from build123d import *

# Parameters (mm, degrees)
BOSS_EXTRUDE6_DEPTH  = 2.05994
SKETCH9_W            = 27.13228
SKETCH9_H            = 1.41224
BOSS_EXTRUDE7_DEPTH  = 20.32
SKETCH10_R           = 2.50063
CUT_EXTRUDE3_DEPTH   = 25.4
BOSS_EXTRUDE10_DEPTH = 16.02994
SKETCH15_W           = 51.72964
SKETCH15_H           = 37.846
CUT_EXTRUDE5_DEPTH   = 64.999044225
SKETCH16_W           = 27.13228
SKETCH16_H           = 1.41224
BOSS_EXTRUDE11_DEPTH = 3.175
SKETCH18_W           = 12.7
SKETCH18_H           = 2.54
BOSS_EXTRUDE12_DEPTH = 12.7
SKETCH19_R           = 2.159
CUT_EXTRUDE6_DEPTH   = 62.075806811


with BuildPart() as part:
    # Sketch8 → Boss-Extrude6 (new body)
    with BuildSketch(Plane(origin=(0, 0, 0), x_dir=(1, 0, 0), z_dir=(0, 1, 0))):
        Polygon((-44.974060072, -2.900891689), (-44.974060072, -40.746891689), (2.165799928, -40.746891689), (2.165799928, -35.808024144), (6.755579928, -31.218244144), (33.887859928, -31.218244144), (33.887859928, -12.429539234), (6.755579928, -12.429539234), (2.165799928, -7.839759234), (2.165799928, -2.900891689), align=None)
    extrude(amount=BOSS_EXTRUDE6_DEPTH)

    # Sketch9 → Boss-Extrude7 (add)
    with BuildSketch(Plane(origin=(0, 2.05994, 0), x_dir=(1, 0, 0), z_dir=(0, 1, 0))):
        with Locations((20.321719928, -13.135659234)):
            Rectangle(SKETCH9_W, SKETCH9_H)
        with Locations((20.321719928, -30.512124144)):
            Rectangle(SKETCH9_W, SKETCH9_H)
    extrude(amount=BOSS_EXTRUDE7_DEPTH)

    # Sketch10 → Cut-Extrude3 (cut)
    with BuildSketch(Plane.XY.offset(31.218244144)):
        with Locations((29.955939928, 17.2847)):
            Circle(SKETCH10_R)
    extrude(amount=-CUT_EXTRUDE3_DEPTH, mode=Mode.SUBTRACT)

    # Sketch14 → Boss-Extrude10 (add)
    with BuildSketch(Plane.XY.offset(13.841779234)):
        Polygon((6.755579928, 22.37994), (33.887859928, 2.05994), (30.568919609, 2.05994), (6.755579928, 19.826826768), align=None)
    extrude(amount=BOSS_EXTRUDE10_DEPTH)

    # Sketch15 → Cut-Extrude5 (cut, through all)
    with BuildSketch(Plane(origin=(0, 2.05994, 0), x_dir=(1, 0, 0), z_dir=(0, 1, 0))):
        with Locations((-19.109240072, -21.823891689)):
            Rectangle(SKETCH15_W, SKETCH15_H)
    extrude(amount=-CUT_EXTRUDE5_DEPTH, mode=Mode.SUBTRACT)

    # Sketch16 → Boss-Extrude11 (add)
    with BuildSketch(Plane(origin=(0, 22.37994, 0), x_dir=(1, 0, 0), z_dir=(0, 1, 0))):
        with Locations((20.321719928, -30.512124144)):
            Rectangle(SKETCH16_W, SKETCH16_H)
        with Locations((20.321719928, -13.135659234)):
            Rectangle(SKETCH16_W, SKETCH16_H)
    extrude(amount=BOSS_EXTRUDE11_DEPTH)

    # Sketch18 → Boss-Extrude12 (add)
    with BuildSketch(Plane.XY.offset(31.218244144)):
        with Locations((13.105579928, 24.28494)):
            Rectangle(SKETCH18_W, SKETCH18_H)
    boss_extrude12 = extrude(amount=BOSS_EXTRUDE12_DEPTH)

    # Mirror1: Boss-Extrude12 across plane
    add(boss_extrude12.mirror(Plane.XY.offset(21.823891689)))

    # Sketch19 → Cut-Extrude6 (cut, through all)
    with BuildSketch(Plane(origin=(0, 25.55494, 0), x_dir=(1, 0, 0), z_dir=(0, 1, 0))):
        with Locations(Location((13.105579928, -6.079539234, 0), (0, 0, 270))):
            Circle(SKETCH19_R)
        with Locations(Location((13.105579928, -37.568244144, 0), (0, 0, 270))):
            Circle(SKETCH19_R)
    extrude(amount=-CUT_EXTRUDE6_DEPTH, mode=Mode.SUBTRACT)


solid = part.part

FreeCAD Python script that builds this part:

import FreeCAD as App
import Part
import Sketcher
from FreeCAD import Vector
Q = App.Units.Quantity

doc = App.newDocument("Part")
body = doc.addObject("PartDesign::Body", "Body")

sketch1 = doc.addObject("Sketcher::SketchObject", "Sketch")
body.addObject(sketch1)
sketch1.AttachmentSupport = (doc.XZ_Plane, [""])
sketch1.MapMode = "FlatFace"
sketch1.addGeometry(Part.LineSegment(Vector(-45, 2.9, 0), Vector(-45, 40.7, 0)), False)
sketch1.addGeometry(Part.LineSegment(Vector(-45, 40.7, 0), Vector(2.2, 40.7, 0)), False)
sketch1.addGeometry(Part.LineSegment(Vector(2.2, 40.7, 0), Vector(2.2, 35.8, 0)), False)
sketch1.addGeometry(Part.LineSegment(Vector(2.2, 35.8, 0), Vector(6.8, 31.2, 0)), False)
sketch1.addGeometry(Part.LineSegment(Vector(6.8, 31.2, 0), Vector(33.9, 31.2, 0)), False)
sketch1.addGeometry(Part.LineSegment(Vector(33.9, 31.2, 0), Vector(33.9, 12.4, 0)), False)
sketch1.addGeometry(Part.LineSegment(Vector(33.9, 12.4, 0), Vector(6.8, 12.4, 0)), False)
sketch1.addGeometry(Part.LineSegment(Vector(6.8, 12.4, 0), Vector(2.2, 7.8, 0)), False)
sketch1.addGeometry(Part.LineSegment(Vector(2.2, 7.8, 0), Vector(2.2, 2.9, 0)), False)
sketch1.addGeometry(Part.LineSegment(Vector(2.2, 2.9, 0), Vector(-45, 2.9, 0)), False)
sketch1.addConstraint(Sketcher.Constraint("Coincident", 0, 2, 1, 1))
sketch1.addConstraint(Sketcher.Constraint("Coincident", 1, 2, 2, 1))
sketch1.addConstraint(Sketcher.Constraint("Coincident", 2, 2, 3, 1))
sketch1.addConstraint(Sketcher.Constraint("Coincident", 3, 2, 4, 1))
sketch1.addConstraint(Sketcher.Constraint("Coincident", 4, 2, 5, 1))
sketch1.addConstraint(Sketcher.Constraint("Coincident", 5, 2, 6, 1))
sketch1.addConstraint(Sketcher.Constraint("Coincident", 6, 2, 7, 1))
sketch1.addConstraint(Sketcher.Constraint("Coincident", 7, 2, 8, 1))
sketch1.addConstraint(Sketcher.Constraint("Coincident", 8, 2, 9, 1))
sketch1.addConstraint(Sketcher.Constraint("Coincident", 9, 2, 0, 1))
sketch1.addConstraint(Sketcher.Constraint("Vertical", 0))
sketch1.addConstraint(Sketcher.Constraint("Horizontal", 1))
sketch1.addConstraint(Sketcher.Constraint("Vertical", 2))
sketch1.addConstraint(Sketcher.Constraint("Horizontal", 4))
sketch1.addConstraint(Sketcher.Constraint("Vertical", 5))
sketch1.addConstraint(Sketcher.Constraint("Horizontal", 6))
sketch1.addConstraint(Sketcher.Constraint("Vertical", 8))
sketch1.addConstraint(Sketcher.Constraint("Horizontal", 9))
sketch1.addConstraint(Sketcher.Constraint("Perpendicular", 3, 7))
sketch1.addConstraint(Sketcher.Constraint("Vertical", 3, 2, 6, 2))
sketch1.addConstraint(Sketcher.Constraint("Vertical", 2, 2, 7, 2))
sketch1.addConstraint(Sketcher.Constraint("Equal", 2, 8))
sketch1.addConstraint(Sketcher.Constraint("Equal", 3, 7))
sketch1.addConstraint(Sketcher.Constraint("DistanceY", 0, 1, 0, 2, Q("1.49 in")))
sketch1.addConstraint(Sketcher.Constraint("DistanceX", 1, 1, 1, 2, Q("1.8559 in")))
sketch1.addConstraint(Sketcher.Constraint("DistanceX", 4, 1, 4, 2, Q("1.0682 in")))
sketch1.addConstraint(Sketcher.Constraint("DistanceX", 2, 2, 3, 2, Q("0.1807 in")))
sketch1.addConstraint(Sketcher.Constraint("DistanceX", -1, 1, 1, 2, Q("2.1658 mm")))
sketch1.addConstraint(Sketcher.Constraint("DistanceY", 2, 2, 2, 1, Q("4.938868 mm")))
sketch1.addConstraint(Sketcher.Constraint("DistanceY", -1, 1, 0, 2, Q("40.746892 mm")))
pad1 = doc.addObject("PartDesign::Pad", "Pad")
body.addObject(pad1)
pad1.Profile = sketch1
pad1.Length = Q("0.0811 in")
pad1.Reversed = True

sketch2 = doc.addObject("Sketcher::SketchObject", "Sketch001")
body.addObject(sketch2)
sketch2.AttachmentSupport = (doc.XZ_Plane, [""])
sketch2.MapMode = "FlatFace"
sketch2.AttachmentOffset = App.Placement(Vector(0, 0, -0.0811 * 25.4), App.Rotation())
sketch2.addGeometry(Part.LineSegment(Vector(6.8, 12.4, 0), Vector(6.8, 13.8, 0)), False)
sketch2.addGeometry(Part.LineSegment(Vector(6.8, 13.8, 0), Vector(33.9, 13.8, 0)), False)
sketch2.addGeometry(Part.LineSegment(Vector(33.9, 13.8, 0), Vector(33.9, 12.4, 0)), False)
sketch2.addGeometry(Part.LineSegment(Vector(33.9, 12.4, 0), Vector(6.8, 12.4, 0)), False)
sketch2.addGeometry(Part.LineSegment(Vector(6.8, 29.8, 0), Vector(6.8, 31.2, 0)), False)
sketch2.addGeometry(Part.LineSegment(Vector(6.8, 31.2, 0), Vector(33.9, 31.2, 0)), False)
sketch2.addGeometry(Part.LineSegment(Vector(33.9, 31.2, 0), Vector(33.9, 29.8, 0)), False)
sketch2.addGeometry(Part.LineSegment(Vector(33.9, 29.8, 0), Vector(6.8, 29.8, 0)), False)
sketch2.addConstraint(Sketcher.Constraint("Coincident", 0, 2, 1, 1))
sketch2.addConstraint(Sketcher.Constraint("Coincident", 1, 2, 2, 1))
sketch2.addConstraint(Sketcher.Constraint("Coincident", 2, 2, 3, 1))
sketch2.addConstraint(Sketcher.Constraint("Coincident", 3, 2, 0, 1))
sketch2.addConstraint(Sketcher.Constraint("Coincident", 4, 2, 5, 1))
sketch2.addConstraint(Sketcher.Constraint("Coincident", 5, 2, 6, 1))
sketch2.addConstraint(Sketcher.Constraint("Coincident", 6, 2, 7, 1))
sketch2.addConstraint(Sketcher.Constraint("Coincident", 7, 2, 4, 1))
sketch2.addConstraint(Sketcher.Constraint("Vertical", 0))
sketch2.addConstraint(Sketcher.Constraint("Horizontal", 1))
sketch2.addConstraint(Sketcher.Constraint("Vertical", 2))
sketch2.addConstraint(Sketcher.Constraint("Horizontal", 3))
sketch2.addConstraint(Sketcher.Constraint("Vertical", 4))
sketch2.addConstraint(Sketcher.Constraint("Horizontal", 5))
sketch2.addConstraint(Sketcher.Constraint("Vertical", 6))
sketch2.addConstraint(Sketcher.Constraint("Horizontal", 7))
sketch2.addConstraint(Sketcher.Constraint("Vertical", 3, 2, 4, 2))
sketch2.addConstraint(Sketcher.Constraint("Vertical", 2, 2, 5, 2))
sketch2.addConstraint(Sketcher.Constraint("Equal", 2, 4))
sketch2.addConstraint(Sketcher.Constraint("DistanceX", 1, 1, 1, 2, Q("1.0682 in")))
sketch2.addConstraint(Sketcher.Constraint("DistanceY", 0, 1, 0, 2, Q("0.0556 in")))
sketch2.addConstraint(Sketcher.Constraint("DistanceX", -1, 1, 0, 2, Q("6.75558 mm")))
sketch2.addConstraint(Sketcher.Constraint("DistanceY", -1, 1, 0, 2, Q("13.841779 mm")))
sketch2.addConstraint(Sketcher.Constraint("DistanceY", -1, 1, 4, 2, Q("31.218244 mm")))
pad2 = doc.addObject("PartDesign::Pad", "Pad001")
body.addObject(pad2)
pad2.Profile = sketch2
pad2.Length = Q("0.8 in")
pad2.Reversed = True

sketch3 = doc.addObject("Sketcher::SketchObject", "Sketch002")
body.addObject(sketch3)
sketch3.AttachmentSupport = (doc.XY_Plane, [""])
sketch3.MapMode = "FlatFace"
sketch3.AttachmentOffset = App.Placement(Vector(0, 0, 31.218244), App.Rotation())
sketch3.addGeometry(Part.Circle(Vector(30, 17.3, 0), Vector(0, 0, 1), 2.5), False)
sketch3.addConstraint(Sketcher.Constraint("Diameter", 0, Q("0.1969 in")))
sketch3.addConstraint(Sketcher.Constraint("DistanceY", -1, 1, 0, 3, Q("0.6805 in")))
sketch3.addConstraint(Sketcher.Constraint("DistanceX", -1, 1, 0, 3, Q("29.95594 mm")))
pocket1 = doc.addObject("PartDesign::Pocket", "Pocket")
body.addObject(pocket1)
pocket1.Profile = sketch3
pocket1.Length = Q("1 in")

sketch4 = doc.addObject("Sketcher::SketchObject", "Sketch003")
body.addObject(sketch4)
sketch4.AttachmentSupport = (doc.XY_Plane, [""])
sketch4.MapMode = "FlatFace"
sketch4.AttachmentOffset = App.Placement(Vector(0, 0, 13.841779), App.Rotation())
sketch4.addGeometry(Part.LineSegment(Vector(33.9, 2.1, 0), Vector(6.8, 22.4, 0)), False)
sketch4.addGeometry(Part.LineSegment(Vector(6.8, 22.4, 0), Vector(6.8, 19.8, 0)), False)
sketch4.addGeometry(Part.LineSegment(Vector(6.8, 19.8, 0), Vector(30.6, 2.1, 0)), False)
sketch4.addGeometry(Part.LineSegment(Vector(30.6, 2.1, 0), Vector(33.9, 2.1, 0)), False)
sketch4.addConstraint(Sketcher.Constraint("Coincident", 0, 2, 1, 1))
sketch4.addConstraint(Sketcher.Constraint("Coincident", 1, 2, 2, 1))
sketch4.addConstraint(Sketcher.Constraint("Coincident", 2, 2, 3, 1))
sketch4.addConstraint(Sketcher.Constraint("Coincident", 3, 2, 0, 1))
sketch4.addConstraint(Sketcher.Constraint("Vertical", 1))
sketch4.addConstraint(Sketcher.Constraint("Horizontal", 3))
sketch4.addConstraint(Sketcher.Constraint("DistanceY", 2, 2, 0, 2, Q("0.8 in")))
sketch4.addConstraint(Sketcher.Constraint("DistanceY", -1, 1, 0, 2, Q("0.8811 in")))
sketch4.addConstraint(Sketcher.Constraint("DistanceX", 1, 2, 3, 2, Q("1.0682 in")))
sketch4.addConstraint(Sketcher.Constraint("DistanceX", 3, 1, 3, 2, Q("3.31894 mm")))
sketch4.addConstraint(Sketcher.Constraint("DistanceY", 1, 2, 1, 1, Q("2.553113 mm")))
sketch4.addConstraint(Sketcher.Constraint("DistanceX", -1, 1, 0, 2, Q("6.75558 mm")))
pad3 = doc.addObject("PartDesign::Pad", "Pad002")
body.addObject(pad3)
pad3.Profile = sketch4
pad3.Length = Q("0.6311 in")

sketch5 = doc.addObject("Sketcher::SketchObject", "Sketch004")
body.addObject(sketch5)
sketch5.AttachmentSupport = (doc.XZ_Plane, [""])
sketch5.MapMode = "FlatFace"
sketch5.AttachmentOffset = App.Placement(Vector(0, 0, -0.0811 * 25.4), App.Rotation())
sketch5.addGeometry(Part.LineSegment(Vector(-45, 3, 0), Vector(-45, 41, 0)), False)
sketch5.addGeometry(Part.LineSegment(Vector(-45, 41, 0), Vector(7, 41, 0)), False)
sketch5.addGeometry(Part.LineSegment(Vector(7, 41, 0), Vector(7, 3, 0)), False)
sketch5.addGeometry(Part.LineSegment(Vector(7, 3, 0), Vector(-45, 3, 0)), False)
sketch5.addConstraint(Sketcher.Constraint("Coincident", 0, 2, 1, 1))
sketch5.addConstraint(Sketcher.Constraint("Coincident", 1, 2, 2, 1))
sketch5.addConstraint(Sketcher.Constraint("Coincident", 2, 2, 3, 1))
sketch5.addConstraint(Sketcher.Constraint("Coincident", 3, 2, 0, 1))
sketch5.addConstraint(Sketcher.Constraint("Vertical", 0))
sketch5.addConstraint(Sketcher.Constraint("Horizontal", 1))
sketch5.addConstraint(Sketcher.Constraint("Vertical", 2))
sketch5.addConstraint(Sketcher.Constraint("Horizontal", 3))
sketch5.addConstraint(Sketcher.Constraint("DistanceY", 0, 1, 0, 2, Q("1.49 in")))
sketch5.addConstraint(Sketcher.Constraint("DistanceX", 1, 1, 1, 2, Q("2.0366 in")))
sketch5.addConstraint(Sketcher.Constraint("DistanceX", 0, 2, -1, 1, Q("44.97406 mm")))
sketch5.addConstraint(Sketcher.Constraint("DistanceY", -1, 1, 0, 2, Q("40.746892 mm")))
pocket2 = doc.addObject("PartDesign::Pocket", "Pocket001")
body.addObject(pocket2)
pocket2.Profile = sketch5
pocket2.Type = "ThroughAll"
pocket2.Reversed = True

sketch6 = doc.addObject("Sketcher::SketchObject", "Sketch005")
body.addObject(sketch6)
sketch6.AttachmentSupport = (doc.XZ_Plane, [""])
sketch6.MapMode = "FlatFace"
sketch6.AttachmentOffset = App.Placement(Vector(0, 0, -0.8811 * 25.4), App.Rotation())
sketch6.addGeometry(Part.LineSegment(Vector(6.8, 29.8, 0), Vector(6.8, 31.2, 0)), False)
sketch6.addGeometry(Part.LineSegment(Vector(6.8, 31.2, 0), Vector(33.9, 31.2, 0)), False)
sketch6.addGeometry(Part.LineSegment(Vector(33.9, 31.2, 0), Vector(33.9, 29.8, 0)), False)
sketch6.addGeometry(Part.LineSegment(Vector(33.9, 29.8, 0), Vector(6.8, 29.8, 0)), False)
sketch6.addGeometry(Part.LineSegment(Vector(6.8, 12.4, 0), Vector(6.8, 13.8, 0)), False)
sketch6.addGeometry(Part.LineSegment(Vector(6.8, 13.8, 0), Vector(33.9, 13.8, 0)), False)
sketch6.addGeometry(Part.LineSegment(Vector(33.9, 13.8, 0), Vector(33.9, 12.4, 0)), False)
sketch6.addGeometry(Part.LineSegment(Vector(33.9, 12.4, 0), Vector(6.8, 12.4, 0)), False)
sketch6.addConstraint(Sketcher.Constraint("Coincident", 0, 2, 1, 1))
sketch6.addConstraint(Sketcher.Constraint("Coincident", 1, 2, 2, 1))
sketch6.addConstraint(Sketcher.Constraint("Coincident", 2, 2, 3, 1))
sketch6.addConstraint(Sketcher.Constraint("Coincident", 3, 2, 0, 1))
sketch6.addConstraint(Sketcher.Constraint("Coincident", 4, 2, 5, 1))
sketch6.addConstraint(Sketcher.Constraint("Coincident", 5, 2, 6, 1))
sketch6.addConstraint(Sketcher.Constraint("Coincident", 6, 2, 7, 1))
sketch6.addConstraint(Sketcher.Constraint("Coincident", 7, 2, 4, 1))
sketch6.addConstraint(Sketcher.Constraint("Vertical", 0))
sketch6.addConstraint(Sketcher.Constraint("Horizontal", 1))
sketch6.addConstraint(Sketcher.Constraint("Vertical", 2))
sketch6.addConstraint(Sketcher.Constraint("Horizontal", 3))
sketch6.addConstraint(Sketcher.Constraint("Vertical", 4))
sketch6.addConstraint(Sketcher.Constraint("Horizontal", 5))
sketch6.addConstraint(Sketcher.Constraint("Vertical", 6))
sketch6.addConstraint(Sketcher.Constraint("Horizontal", 7))
sketch6.addConstraint(Sketcher.Constraint("Vertical", 3, 2, 4, 2))
sketch6.addConstraint(Sketcher.Constraint("Vertical", 2, 2, 5, 2))
sketch6.addConstraint(Sketcher.Constraint("Equal", 2, 4))
sketch6.addConstraint(Sketcher.Constraint("DistanceX", 1, 1, 1, 2, Q("1.0682 in")))
sketch6.addConstraint(Sketcher.Constraint("DistanceY", 0, 1, 0, 2, Q("0.0556 in")))
sketch6.addConstraint(Sketcher.Constraint("DistanceX", -1, 1, 0, 2, Q("6.75558 mm")))
sketch6.addConstraint(Sketcher.Constraint("DistanceY", -1, 1, 4, 2, Q("13.841779 mm")))
sketch6.addConstraint(Sketcher.Constraint("DistanceY", -1, 1, 0, 2, Q("31.218244 mm")))
pad4 = doc.addObject("PartDesign::Pad", "Pad003")
body.addObject(pad4)
pad4.Profile = sketch6
pad4.Length = Q("0.125 in")
pad4.Reversed = True

sketch7 = doc.addObject("Sketcher::SketchObject", "Sketch006")
body.addObject(sketch7)
sketch7.AttachmentSupport = (doc.XY_Plane, [""])
sketch7.MapMode = "FlatFace"
sketch7.AttachmentOffset = App.Placement(Vector(0, 0, 31.218244), App.Rotation())
sketch7.addGeometry(Part.LineSegment(Vector(6.8, 25.6, 0), Vector(6.8, 23, 0)), False)
sketch7.addGeometry(Part.LineSegment(Vector(6.8, 23, 0), Vector(19.5, 23, 0)), False)
sketch7.addGeometry(Part.LineSegment(Vector(19.5, 23, 0), Vector(19.5, 25.6, 0)), False)
sketch7.addGeometry(Part.LineSegment(Vector(19.5, 25.6, 0), Vector(6.8, 25.6, 0)), False)
sketch7.addConstraint(Sketcher.Constraint("Coincident", 0, 2, 1, 1))
sketch7.addConstraint(Sketcher.Constraint("Coincident", 1, 2, 2, 1))
sketch7.addConstraint(Sketcher.Constraint("Coincident", 2, 2, 3, 1))
sketch7.addConstraint(Sketcher.Constraint("Coincident", 3, 2, 0, 1))
sketch7.addConstraint(Sketcher.Constraint("Vertical", 0))
sketch7.addConstraint(Sketcher.Constraint("Horizontal", 1))
sketch7.addConstraint(Sketcher.Constraint("Vertical", 2))
sketch7.addConstraint(Sketcher.Constraint("Horizontal", 3))
sketch7.addConstraint(Sketcher.Constraint("DistanceX", 1, 1, 1, 2, Q("0.5 in")))
sketch7.addConstraint(Sketcher.Constraint("DistanceY", 0, 2, 0, 1, Q("0.1 in")))
sketch7.addConstraint(Sketcher.Constraint("DistanceY", -1, 1, 0, 2, Q("0.9061 in")))
sketch7.addConstraint(Sketcher.Constraint("DistanceX", -1, 1, 0, 2, Q("6.75558 mm")))
pad5 = doc.addObject("PartDesign::Pad", "Pad004")
body.addObject(pad5)
pad5.Profile = sketch7
pad5.Length = Q("0.5 in")
doc.recompute()

datumplane = doc.addObject("PartDesign::Plane", "DatumPlane")
body.addObject(datumplane)
datumplane.AttachmentSupport = (doc.XY_Plane, [""])
datumplane.MapMode = "FlatFace"
datumplane.AttachmentOffset = App.Placement(Vector(0, 0, 21.823892), App.Rotation())
mirrored = doc.addObject("PartDesign::Mirrored", "Mirrored")
body.addObject(mirrored)
mirrored.Originals = [pad5]
mirrored.MirrorPlane = (datumplane, [""])
body.Tip = mirrored

sketch8 = doc.addObject("Sketcher::SketchObject", "Sketch007")
body.addObject(sketch8)
sketch8.AttachmentSupport = (doc.XZ_Plane, [""])
sketch8.MapMode = "FlatFace"
sketch8.AttachmentOffset = App.Placement(Vector(0, 0, -1.0061 * 25.4), App.Rotation())
sketch8.addGeometry(Part.Circle(Vector(13.1, 6.1, 0), Vector(0, 0, 1), 2.2), False)
sketch8.addGeometry(Part.Circle(Vector(13.1, 37.6, 0), Vector(0, 0, 1), 2.2), False)
sketch8.addConstraint(Sketcher.Constraint("Equal", 0, 1))
sketch8.addConstraint(Sketcher.Constraint("Vertical", 0, 3, 1, 3))
sketch8.addConstraint(Sketcher.Constraint("Diameter", 0, Q("0.17 in")))
sketch8.addConstraint(Sketcher.Constraint("DistanceX", -1, 1, 0, 3, Q("13.10558 mm")))
sketch8.addConstraint(Sketcher.Constraint("DistanceY", -1, 1, 0, 3, Q("6.079539 mm")))
sketch8.addConstraint(Sketcher.Constraint("DistanceY", -1, 1, 1, 3, Q("37.568244 mm")))
pocket3 = doc.addObject("PartDesign::Pocket", "Pocket002")
body.addObject(pocket3)
pocket3.Profile = sketch8
pocket3.Type = "ThroughAll"
pocket3.Reversed = True

doc.recompute()
